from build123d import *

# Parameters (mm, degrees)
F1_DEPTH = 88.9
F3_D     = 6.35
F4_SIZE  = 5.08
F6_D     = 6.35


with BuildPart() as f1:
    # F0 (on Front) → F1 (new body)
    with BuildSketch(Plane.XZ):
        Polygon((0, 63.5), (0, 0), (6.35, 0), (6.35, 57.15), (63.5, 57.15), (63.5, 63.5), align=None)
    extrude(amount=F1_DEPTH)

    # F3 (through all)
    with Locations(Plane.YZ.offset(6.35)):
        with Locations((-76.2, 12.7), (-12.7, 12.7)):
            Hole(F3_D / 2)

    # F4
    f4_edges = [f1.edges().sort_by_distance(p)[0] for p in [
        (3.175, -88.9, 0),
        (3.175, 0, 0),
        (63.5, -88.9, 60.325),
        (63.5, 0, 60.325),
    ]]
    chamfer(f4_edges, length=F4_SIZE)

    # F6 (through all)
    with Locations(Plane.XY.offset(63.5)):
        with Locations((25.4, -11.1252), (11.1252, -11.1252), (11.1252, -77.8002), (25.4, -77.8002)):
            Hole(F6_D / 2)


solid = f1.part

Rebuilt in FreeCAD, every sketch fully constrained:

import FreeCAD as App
import Part
import Sketcher
from FreeCAD import Vector
Q = App.Units.Quantity


def edges_at(feature, points):
    """Names of the edges that pass closest to the given points."""
    edges = feature.Shape.Edges
    near = lambda p: min(range(len(edges)), key=lambda i: edges[i].distToShape(Part.Vertex(*p))[0])
    return sorted({f"Edge{near(p) + 1}" for p in points})

doc = App.newDocument("Part")
params = doc.addObject("Spreadsheet::Sheet", "Params")
for row, (alias, value) in enumerate([
    ("sketch1_width", "2.5 in"),
    ("sketch1_width2", "0.25 in"),
    ("pad1_length", "3.5 in"),
    ("sketch2_diameter", "0.25 in"),
    ("hole_diameter", "0.25 in"),
    ("chamfer_size", "0.2 in"),
    ("sketch3_diameter", "0.25 in"),
    ("hole2_diameter", "0.25 in"),
], start=1):
    params.set(f"A{row}", alias)
    params.set(f"B{row}", "=" + value)
    params.setAlias(f"B{row}", alias)

body = doc.addObject("PartDesign::Body", "Body")

# Sketch on XZ plane
sketch1 = doc.addObject("Sketcher::SketchObject", "Sketch")
body.addObject(sketch1)
sketch1.AttachmentSupport = (doc.XZ_Plane, [""])
sketch1.MapMode = "FlatFace"
sketch1.addGeometry(Part.LineSegment(Vector(0, 64, 0), Vector(0, 0, 0)), False)
sketch1.addGeometry(Part.LineSegment(Vector(0, 0, 0), Vector(6, 0, 0)), False)
sketch1.addGeometry(Part.LineSegment(Vector(6, 0, 0), Vector(6, 57, 0)), False)
sketch1.addGeometry(Part.LineSegment(Vector(6, 57, 0), Vector(64, 57, 0)), False)
sketch1.addGeometry(Part.LineSegment(Vector(64, 57, 0), Vector(64, 64, 0)), False)
sketch1.addGeometry(Part.LineSegment(Vector(64, 64, 0), Vector(0, 64, 0)), False)
sketch1.addConstraint(Sketcher.Constraint("Coincident", 0, 2, 1, 1))
sketch1.addConstraint(Sketcher.Constraint("Coincident", 1, 2, 2, 1))
sketch1.addConstraint(Sketcher.Constraint("Coincident", 2, 2, 3, 1))
sketch1.addConstraint(Sketcher.Constraint("Coincident", 3, 2, 4, 1))
sketch1.addConstraint(Sketcher.Constraint("Coincident", 4, 2, 5, 1))
sketch1.addConstraint(Sketcher.Constraint("Coincident", 5, 2, 0, 1))
sketch1.addConstraint(Sketcher.Constraint("Vertical", 0))
sketch1.addConstraint(Sketcher.Constraint("Horizontal", 1))
sketch1.addConstraint(Sketcher.Constraint("Vertical", 2))
sketch1.addConstraint(Sketcher.Constraint("Horizontal", 3))
sketch1.addConstraint(Sketcher.Constraint("Vertical", 4))
sketch1.addConstraint(Sketcher.Constraint("Horizontal", 5))
sketch1.addConstraint(Sketcher.Constraint("Coincident", 0, 2, -1, 1))
sketch1.addConstraint(Sketcher.Constraint("Equal", 5, 0))
sketch1.addConstraint(Sketcher.Constraint("Equal", 3, 2))
sketch1.addConstraint(Sketcher.Constraint("DistanceX", 5, 2, 5, 1, Q("2.5 in")))
sketch1.addConstraint(Sketcher.Constraint("DistanceX", 1, 1, 1, 2, Q("0.25 in")))
sketch1.setExpression("Constraints[15]", "Params.sketch1_width")
sketch1.setExpression("Constraints[16]", "Params.sketch1_width2")
pad1 = doc.addObject("PartDesign::Pad", "Pad")
body.addObject(pad1)
pad1.Profile = sketch1
pad1.setExpression("Length", "Params.pad1_length")

# Sketch on YZ plane
sketch2 = doc.addObject("Sketcher::SketchObject", "Sketch001")
body.addObject(sketch2)
sketch2.AttachmentSupport = (doc.YZ_Plane, [""])
sketch2.MapMode = "FlatFace"
sketch2.AttachmentOffset = App.Placement(Vector(0, 0, 0.25 * 25.4), App.Rotation())
sketch2.addGeometry(Part.Circle(Vector(-76.2, 12.7, 0), Vector(0, 0, 1), 3.2), False)
sketch2.addGeometry(Part.Circle(Vector(-12.7, 12.7, 0), Vector(0, 0, 1), 3.2), False)
sketch2.addConstraint(Sketcher.Constraint("Equal", 0, 1))
sketch2.addConstraint(Sketcher.Constraint("Horizontal", 0, 3, 1, 3))
sketch2.addConstraint(Sketcher.Constraint("Diameter", 0, Q("0.25 in")))
sketch2.addConstraint(Sketcher.Constraint("DistanceX", 0, 3, -1, 1, Q("3 in")))
sketch2.addConstraint(Sketcher.Constraint("DistanceY", -1, 1, 0, 3, Q("0.5 in")))
sketch2.addConstraint(Sketcher.Constraint("DistanceX", 1, 3, -1, 1, Q("0.5 in")))
sketch2.setExpression("Constraints[2]", "Params.sketch2_diameter")
doc.recompute()
hole = doc.addObject("PartDesign::Hole", "Hole")
body.addObject(hole)
hole.Profile = sketch2
hole.ThreadType = "None"
hole.setExpression("Diameter", "Params.hole_diameter")
hole.DepthType = "ThroughAll"
doc.recompute()

chamfer = doc.addObject("PartDesign::Chamfer", "Chamfer")
body.addObject(chamfer)
chamfer.Base = (hole, edges_at(hole, [
    (3.175, -88.9, 0),
    (3.175, 0, 0),
    (63.5, -88.9, 60.325),
    (63.5, 0, 60.325),
]))
chamfer.setExpression("Size", "Params.chamfer_size")

# Sketch on XY plane
sketch3 = doc.addObject("Sketcher::SketchObject", "Sketch002")
body.addObject(sketch3)
sketch3.AttachmentSupport = (doc.XY_Plane, [""])
sketch3.MapMode = "FlatFace"
sketch3.AttachmentOffset = App.Placement(Vector(0, 0, 2.5 * 25.4), App.Rotation())
sketch3.addGeometry(Part.Circle(Vector(25.4, -11.1, 0), Vector(0, 0, 1), 3.2), False)
sketch3.addGeometry(Part.Circle(Vector(11.1, -11.1, 0), Vector(0, 0, 1), 3.2), False)
sketch3.addGeometry(Part.Circle(Vector(11.1, -77.8, 0), Vector(0, 0, 1), 3.2), False)
sketch3.addGeometry(Part.Circle(Vector(25.4, -77.8, 0), Vector(0, 0, 1), 3.2), False)
sketch3.addConstraint(Sketcher.Constraint("Equal", 0, 1))
sketch3.addConstraint(Sketcher.Constraint("Equal", 1, 2))
sketch3.addConstraint(Sketcher.Constraint("Equal", 2, 3))
sketch3.addConstraint(Sketcher.Constraint("Horizontal", 0, 3, 1, 3))
sketch3.addConstraint(Sketcher.Constraint("Horizontal", 2, 3, 3, 3))
sketch3.addConstraint(Sketcher.Constraint("Vertical", 1, 3, 2, 3))
sketch3.addConstraint(Sketcher.Constraint("Vertical", 0, 3, 3, 3))
sketch3.addConstraint(Sketcher.Constraint("Diameter", 0, Q("0.25 in")))
sketch3.addConstraint(Sketcher.Constraint("DistanceX", -1, 1, 0, 3, Q("1 in")))
sketch3.addConstraint(Sketcher.Constraint("DistanceY", 0, 3, -1, 1, Q("0.438 in")))
sketch3.addConstraint(Sketcher.Constraint("DistanceX", -1, 1, 1, 3, Q("0.438 in")))
sketch3.addConstraint(Sketcher.Constraint("DistanceY", 2, 3, -1, 1, Q("3.063 in")))
sketch3.setExpression("Constraints[7]", "Params.sketch3_diameter")
doc.recompute()
hole2 = doc.addObject("PartDesign::Hole", "Hole001")
body.addObject(hole2)
hole2.Profile = sketch3
hole2.ThreadType = "None"
hole2.setExpression("Diameter", "Params.hole2_diameter")
hole2.DepthType = "ThroughAll"

doc.recompute()
